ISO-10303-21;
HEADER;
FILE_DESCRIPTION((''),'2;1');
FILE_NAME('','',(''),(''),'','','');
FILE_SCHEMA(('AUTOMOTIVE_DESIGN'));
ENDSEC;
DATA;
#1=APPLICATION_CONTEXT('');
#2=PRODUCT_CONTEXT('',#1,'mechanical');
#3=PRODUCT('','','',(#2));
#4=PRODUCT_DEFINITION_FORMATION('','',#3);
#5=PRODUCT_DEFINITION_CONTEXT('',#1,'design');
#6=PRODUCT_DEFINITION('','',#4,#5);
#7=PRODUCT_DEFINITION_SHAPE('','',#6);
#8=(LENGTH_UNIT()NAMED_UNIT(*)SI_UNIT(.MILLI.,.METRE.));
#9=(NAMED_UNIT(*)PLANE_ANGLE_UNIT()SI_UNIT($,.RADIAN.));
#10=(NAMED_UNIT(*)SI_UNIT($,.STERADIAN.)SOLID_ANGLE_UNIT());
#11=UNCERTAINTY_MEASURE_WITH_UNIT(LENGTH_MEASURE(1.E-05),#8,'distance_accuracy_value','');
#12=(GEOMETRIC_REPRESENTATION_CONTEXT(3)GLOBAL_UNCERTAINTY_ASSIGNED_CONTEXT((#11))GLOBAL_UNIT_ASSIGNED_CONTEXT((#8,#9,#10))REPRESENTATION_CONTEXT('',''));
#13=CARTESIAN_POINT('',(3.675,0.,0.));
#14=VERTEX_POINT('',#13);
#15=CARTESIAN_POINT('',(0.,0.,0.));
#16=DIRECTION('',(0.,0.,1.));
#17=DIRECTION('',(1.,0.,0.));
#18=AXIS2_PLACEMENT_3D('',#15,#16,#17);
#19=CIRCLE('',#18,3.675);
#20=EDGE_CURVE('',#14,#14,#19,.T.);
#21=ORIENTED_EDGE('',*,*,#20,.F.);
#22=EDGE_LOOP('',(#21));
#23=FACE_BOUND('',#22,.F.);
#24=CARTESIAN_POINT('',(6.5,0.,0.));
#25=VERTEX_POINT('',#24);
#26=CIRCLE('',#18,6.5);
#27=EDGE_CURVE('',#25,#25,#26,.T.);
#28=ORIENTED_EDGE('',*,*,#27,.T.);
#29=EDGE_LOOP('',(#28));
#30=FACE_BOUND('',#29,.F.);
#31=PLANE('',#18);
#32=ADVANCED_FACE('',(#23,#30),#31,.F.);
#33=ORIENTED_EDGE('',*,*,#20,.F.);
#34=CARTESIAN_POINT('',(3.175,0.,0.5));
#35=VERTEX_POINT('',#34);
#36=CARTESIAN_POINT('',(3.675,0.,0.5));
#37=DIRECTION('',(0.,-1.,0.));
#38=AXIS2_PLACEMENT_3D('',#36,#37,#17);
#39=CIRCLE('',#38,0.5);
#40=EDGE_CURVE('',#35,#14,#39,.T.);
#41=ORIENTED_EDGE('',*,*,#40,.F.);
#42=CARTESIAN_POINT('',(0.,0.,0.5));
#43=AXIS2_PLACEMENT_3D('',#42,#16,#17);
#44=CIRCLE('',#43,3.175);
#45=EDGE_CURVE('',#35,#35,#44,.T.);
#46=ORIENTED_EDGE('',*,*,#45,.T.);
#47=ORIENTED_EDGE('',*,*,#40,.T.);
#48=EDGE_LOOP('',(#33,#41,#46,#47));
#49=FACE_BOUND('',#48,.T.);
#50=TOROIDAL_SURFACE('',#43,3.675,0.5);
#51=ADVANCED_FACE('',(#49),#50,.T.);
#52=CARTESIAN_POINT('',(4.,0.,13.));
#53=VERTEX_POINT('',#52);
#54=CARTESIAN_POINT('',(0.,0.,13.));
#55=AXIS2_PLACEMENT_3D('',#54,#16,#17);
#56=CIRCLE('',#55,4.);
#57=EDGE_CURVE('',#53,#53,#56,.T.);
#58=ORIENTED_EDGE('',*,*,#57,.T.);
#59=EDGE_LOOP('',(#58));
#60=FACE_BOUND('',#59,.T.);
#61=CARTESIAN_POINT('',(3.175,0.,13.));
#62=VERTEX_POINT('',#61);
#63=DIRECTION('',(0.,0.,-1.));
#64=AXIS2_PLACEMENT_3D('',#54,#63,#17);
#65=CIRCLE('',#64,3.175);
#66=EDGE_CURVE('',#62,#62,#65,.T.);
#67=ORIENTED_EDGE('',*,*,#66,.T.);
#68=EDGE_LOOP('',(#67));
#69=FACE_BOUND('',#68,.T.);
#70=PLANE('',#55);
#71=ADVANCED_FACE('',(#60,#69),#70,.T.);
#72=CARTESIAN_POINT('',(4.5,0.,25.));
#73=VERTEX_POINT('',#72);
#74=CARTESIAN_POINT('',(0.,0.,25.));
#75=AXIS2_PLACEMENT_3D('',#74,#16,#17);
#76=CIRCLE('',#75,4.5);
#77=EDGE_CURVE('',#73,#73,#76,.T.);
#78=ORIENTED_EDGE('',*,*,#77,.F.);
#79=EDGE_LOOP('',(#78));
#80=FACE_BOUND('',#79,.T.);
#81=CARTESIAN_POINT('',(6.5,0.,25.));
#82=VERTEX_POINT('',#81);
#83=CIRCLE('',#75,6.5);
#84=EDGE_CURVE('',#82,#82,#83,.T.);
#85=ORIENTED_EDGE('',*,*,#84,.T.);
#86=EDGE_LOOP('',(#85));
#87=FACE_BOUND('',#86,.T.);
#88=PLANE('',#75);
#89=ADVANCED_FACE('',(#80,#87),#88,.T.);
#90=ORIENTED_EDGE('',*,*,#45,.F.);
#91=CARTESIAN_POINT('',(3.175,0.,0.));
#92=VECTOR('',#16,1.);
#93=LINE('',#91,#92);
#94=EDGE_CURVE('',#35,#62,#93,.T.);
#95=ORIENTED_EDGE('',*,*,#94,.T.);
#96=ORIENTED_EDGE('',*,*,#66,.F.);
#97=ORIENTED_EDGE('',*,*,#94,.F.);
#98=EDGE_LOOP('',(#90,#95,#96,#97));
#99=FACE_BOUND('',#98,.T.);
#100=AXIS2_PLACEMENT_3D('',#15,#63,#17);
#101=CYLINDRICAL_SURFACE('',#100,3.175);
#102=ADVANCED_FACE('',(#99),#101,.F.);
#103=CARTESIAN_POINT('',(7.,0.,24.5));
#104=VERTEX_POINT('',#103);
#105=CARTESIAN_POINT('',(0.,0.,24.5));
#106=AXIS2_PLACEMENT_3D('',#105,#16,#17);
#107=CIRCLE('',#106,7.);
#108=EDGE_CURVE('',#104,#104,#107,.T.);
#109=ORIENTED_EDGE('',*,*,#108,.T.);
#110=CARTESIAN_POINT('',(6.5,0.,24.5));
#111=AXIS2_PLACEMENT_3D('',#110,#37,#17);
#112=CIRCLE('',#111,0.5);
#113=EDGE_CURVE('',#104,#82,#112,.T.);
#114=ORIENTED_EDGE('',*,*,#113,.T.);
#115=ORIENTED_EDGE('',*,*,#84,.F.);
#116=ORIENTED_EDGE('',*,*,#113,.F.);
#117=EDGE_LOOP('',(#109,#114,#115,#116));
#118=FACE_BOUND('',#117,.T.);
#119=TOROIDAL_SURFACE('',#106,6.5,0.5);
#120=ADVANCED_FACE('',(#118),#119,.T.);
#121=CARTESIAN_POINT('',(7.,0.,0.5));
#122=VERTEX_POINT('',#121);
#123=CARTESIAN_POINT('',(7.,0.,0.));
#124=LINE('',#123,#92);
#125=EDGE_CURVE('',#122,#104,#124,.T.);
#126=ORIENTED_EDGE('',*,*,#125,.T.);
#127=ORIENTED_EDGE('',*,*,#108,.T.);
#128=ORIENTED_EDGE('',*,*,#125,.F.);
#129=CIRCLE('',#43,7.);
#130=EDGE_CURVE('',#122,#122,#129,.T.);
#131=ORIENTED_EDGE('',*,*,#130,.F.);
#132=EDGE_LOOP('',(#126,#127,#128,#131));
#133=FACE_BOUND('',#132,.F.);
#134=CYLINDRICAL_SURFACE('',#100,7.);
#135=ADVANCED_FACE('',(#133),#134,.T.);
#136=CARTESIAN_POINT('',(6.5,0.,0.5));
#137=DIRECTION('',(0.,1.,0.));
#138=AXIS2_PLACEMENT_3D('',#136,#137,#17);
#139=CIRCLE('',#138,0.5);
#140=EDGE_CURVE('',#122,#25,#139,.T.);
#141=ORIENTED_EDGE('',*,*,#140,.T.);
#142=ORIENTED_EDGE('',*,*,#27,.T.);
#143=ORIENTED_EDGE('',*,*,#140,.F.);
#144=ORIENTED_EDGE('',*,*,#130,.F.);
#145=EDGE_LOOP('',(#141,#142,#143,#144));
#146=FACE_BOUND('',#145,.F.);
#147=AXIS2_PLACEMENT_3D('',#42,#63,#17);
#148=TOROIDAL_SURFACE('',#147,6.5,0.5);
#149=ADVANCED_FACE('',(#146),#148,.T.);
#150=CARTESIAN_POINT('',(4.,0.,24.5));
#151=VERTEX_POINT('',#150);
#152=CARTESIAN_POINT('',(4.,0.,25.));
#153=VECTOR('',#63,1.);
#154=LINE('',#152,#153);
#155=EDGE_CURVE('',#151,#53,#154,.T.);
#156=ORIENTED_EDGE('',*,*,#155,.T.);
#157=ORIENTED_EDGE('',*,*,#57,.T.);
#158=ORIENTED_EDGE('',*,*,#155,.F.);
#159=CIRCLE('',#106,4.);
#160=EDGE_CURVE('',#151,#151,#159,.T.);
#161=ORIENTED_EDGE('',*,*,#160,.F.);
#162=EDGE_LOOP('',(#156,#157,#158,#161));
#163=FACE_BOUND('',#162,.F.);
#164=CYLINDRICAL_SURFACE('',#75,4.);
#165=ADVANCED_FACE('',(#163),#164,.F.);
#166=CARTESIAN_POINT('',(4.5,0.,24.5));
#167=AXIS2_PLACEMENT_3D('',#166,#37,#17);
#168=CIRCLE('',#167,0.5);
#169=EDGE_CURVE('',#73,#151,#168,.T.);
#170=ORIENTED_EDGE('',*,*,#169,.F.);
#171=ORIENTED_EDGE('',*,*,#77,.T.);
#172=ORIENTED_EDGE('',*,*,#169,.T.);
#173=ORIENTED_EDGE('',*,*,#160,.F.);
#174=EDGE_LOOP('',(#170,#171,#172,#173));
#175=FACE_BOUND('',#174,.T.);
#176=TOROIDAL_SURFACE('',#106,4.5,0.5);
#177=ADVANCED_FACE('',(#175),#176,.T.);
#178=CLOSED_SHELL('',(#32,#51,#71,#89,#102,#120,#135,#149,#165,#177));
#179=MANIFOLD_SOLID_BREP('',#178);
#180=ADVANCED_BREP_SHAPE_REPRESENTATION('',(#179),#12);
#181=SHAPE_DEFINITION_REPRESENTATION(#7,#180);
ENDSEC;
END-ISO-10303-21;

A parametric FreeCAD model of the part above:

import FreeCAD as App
import Part
import Sketcher


def edges_at(feature, points):
    """Names of the edges that pass closest to the given points."""
    edges = feature.Shape.Edges
    near = lambda p: min(range(len(edges)), key=lambda i: edges[i].distToShape(Part.Vertex(*p))[0])
    return sorted({f"Edge{near(p) + 1}" for p in points})

doc = App.newDocument("Part")
body = doc.addObject("PartDesign::Body", "Body")

sketch1 = body.newObject("Sketcher::SketchObject", "Sketch")
sketch1.AttachmentSupport = (doc.getObject("XY_Plane"), [""])
sketch1.MapMode = "FlatFace"
sketch1.addGeometry(Part.Circle(App.Vector(0, 0, 0), App.Vector(0, 0, 1), 7), False)
sketch1.addGeometry(Part.Circle(App.Vector(0, 0, 0), App.Vector(0, 0, 1), 3.2), False)
sketch1.addConstraint(Sketcher.Constraint("Coincident", 0, 3, -1, 1))
sketch1.addConstraint(Sketcher.Constraint("Coincident", 1, 3, -1, 1))
sketch1.addConstraint(Sketcher.Constraint("Diameter", 0, 14.0))
sketch1.addConstraint(Sketcher.Constraint("Diameter", 1, 6.35))
pad1 = body.newObject("PartDesign::Pad", "Pad")
pad1.Profile = sketch1
pad1.Length = 25
doc.recompute()

fillet = body.newObject("PartDesign::Fillet", "Fillet")
fillet.Base = (pad1, edges_at(pad1, [
    (-7, 0, 25),
    (-7, 0, 0),
    (-3.175, 0, 0),
    (-3.175, 0, 25),
]))
fillet.Radius = 0.5

sketch2 = body.newObject("Sketcher::SketchObject", "Sketch001")
sketch2.AttachmentSupport = (doc.getObject("XY_Plane"), [""])
sketch2.MapMode = "FlatFace"
sketch2.AttachmentOffset = App.Placement(App.Vector(0, 0, 25), App.Rotation())
sketch2.addGeometry(Part.Circle(App.Vector(0, 0, 0), App.Vector(0, 0, 1), 4), False)
sketch2.addConstraint(Sketcher.Constraint("Coincident", 0, 3, -1, 1))
sketch2.addConstraint(Sketcher.Constraint("Diameter", 0, 8.0))
pocket1 = body.newObject("PartDesign::Pocket", "Pocket")
pocket1.Profile = sketch2
pocket1.Length = 12
doc.recompute()

fillet2 = body.newObject("PartDesign::Fillet", "Fillet001")
fillet2.Base = (pocket1, edges_at(pocket1, [(-4, 0, 25)]))
fillet2.Radius = 0.5

doc.recompute()
